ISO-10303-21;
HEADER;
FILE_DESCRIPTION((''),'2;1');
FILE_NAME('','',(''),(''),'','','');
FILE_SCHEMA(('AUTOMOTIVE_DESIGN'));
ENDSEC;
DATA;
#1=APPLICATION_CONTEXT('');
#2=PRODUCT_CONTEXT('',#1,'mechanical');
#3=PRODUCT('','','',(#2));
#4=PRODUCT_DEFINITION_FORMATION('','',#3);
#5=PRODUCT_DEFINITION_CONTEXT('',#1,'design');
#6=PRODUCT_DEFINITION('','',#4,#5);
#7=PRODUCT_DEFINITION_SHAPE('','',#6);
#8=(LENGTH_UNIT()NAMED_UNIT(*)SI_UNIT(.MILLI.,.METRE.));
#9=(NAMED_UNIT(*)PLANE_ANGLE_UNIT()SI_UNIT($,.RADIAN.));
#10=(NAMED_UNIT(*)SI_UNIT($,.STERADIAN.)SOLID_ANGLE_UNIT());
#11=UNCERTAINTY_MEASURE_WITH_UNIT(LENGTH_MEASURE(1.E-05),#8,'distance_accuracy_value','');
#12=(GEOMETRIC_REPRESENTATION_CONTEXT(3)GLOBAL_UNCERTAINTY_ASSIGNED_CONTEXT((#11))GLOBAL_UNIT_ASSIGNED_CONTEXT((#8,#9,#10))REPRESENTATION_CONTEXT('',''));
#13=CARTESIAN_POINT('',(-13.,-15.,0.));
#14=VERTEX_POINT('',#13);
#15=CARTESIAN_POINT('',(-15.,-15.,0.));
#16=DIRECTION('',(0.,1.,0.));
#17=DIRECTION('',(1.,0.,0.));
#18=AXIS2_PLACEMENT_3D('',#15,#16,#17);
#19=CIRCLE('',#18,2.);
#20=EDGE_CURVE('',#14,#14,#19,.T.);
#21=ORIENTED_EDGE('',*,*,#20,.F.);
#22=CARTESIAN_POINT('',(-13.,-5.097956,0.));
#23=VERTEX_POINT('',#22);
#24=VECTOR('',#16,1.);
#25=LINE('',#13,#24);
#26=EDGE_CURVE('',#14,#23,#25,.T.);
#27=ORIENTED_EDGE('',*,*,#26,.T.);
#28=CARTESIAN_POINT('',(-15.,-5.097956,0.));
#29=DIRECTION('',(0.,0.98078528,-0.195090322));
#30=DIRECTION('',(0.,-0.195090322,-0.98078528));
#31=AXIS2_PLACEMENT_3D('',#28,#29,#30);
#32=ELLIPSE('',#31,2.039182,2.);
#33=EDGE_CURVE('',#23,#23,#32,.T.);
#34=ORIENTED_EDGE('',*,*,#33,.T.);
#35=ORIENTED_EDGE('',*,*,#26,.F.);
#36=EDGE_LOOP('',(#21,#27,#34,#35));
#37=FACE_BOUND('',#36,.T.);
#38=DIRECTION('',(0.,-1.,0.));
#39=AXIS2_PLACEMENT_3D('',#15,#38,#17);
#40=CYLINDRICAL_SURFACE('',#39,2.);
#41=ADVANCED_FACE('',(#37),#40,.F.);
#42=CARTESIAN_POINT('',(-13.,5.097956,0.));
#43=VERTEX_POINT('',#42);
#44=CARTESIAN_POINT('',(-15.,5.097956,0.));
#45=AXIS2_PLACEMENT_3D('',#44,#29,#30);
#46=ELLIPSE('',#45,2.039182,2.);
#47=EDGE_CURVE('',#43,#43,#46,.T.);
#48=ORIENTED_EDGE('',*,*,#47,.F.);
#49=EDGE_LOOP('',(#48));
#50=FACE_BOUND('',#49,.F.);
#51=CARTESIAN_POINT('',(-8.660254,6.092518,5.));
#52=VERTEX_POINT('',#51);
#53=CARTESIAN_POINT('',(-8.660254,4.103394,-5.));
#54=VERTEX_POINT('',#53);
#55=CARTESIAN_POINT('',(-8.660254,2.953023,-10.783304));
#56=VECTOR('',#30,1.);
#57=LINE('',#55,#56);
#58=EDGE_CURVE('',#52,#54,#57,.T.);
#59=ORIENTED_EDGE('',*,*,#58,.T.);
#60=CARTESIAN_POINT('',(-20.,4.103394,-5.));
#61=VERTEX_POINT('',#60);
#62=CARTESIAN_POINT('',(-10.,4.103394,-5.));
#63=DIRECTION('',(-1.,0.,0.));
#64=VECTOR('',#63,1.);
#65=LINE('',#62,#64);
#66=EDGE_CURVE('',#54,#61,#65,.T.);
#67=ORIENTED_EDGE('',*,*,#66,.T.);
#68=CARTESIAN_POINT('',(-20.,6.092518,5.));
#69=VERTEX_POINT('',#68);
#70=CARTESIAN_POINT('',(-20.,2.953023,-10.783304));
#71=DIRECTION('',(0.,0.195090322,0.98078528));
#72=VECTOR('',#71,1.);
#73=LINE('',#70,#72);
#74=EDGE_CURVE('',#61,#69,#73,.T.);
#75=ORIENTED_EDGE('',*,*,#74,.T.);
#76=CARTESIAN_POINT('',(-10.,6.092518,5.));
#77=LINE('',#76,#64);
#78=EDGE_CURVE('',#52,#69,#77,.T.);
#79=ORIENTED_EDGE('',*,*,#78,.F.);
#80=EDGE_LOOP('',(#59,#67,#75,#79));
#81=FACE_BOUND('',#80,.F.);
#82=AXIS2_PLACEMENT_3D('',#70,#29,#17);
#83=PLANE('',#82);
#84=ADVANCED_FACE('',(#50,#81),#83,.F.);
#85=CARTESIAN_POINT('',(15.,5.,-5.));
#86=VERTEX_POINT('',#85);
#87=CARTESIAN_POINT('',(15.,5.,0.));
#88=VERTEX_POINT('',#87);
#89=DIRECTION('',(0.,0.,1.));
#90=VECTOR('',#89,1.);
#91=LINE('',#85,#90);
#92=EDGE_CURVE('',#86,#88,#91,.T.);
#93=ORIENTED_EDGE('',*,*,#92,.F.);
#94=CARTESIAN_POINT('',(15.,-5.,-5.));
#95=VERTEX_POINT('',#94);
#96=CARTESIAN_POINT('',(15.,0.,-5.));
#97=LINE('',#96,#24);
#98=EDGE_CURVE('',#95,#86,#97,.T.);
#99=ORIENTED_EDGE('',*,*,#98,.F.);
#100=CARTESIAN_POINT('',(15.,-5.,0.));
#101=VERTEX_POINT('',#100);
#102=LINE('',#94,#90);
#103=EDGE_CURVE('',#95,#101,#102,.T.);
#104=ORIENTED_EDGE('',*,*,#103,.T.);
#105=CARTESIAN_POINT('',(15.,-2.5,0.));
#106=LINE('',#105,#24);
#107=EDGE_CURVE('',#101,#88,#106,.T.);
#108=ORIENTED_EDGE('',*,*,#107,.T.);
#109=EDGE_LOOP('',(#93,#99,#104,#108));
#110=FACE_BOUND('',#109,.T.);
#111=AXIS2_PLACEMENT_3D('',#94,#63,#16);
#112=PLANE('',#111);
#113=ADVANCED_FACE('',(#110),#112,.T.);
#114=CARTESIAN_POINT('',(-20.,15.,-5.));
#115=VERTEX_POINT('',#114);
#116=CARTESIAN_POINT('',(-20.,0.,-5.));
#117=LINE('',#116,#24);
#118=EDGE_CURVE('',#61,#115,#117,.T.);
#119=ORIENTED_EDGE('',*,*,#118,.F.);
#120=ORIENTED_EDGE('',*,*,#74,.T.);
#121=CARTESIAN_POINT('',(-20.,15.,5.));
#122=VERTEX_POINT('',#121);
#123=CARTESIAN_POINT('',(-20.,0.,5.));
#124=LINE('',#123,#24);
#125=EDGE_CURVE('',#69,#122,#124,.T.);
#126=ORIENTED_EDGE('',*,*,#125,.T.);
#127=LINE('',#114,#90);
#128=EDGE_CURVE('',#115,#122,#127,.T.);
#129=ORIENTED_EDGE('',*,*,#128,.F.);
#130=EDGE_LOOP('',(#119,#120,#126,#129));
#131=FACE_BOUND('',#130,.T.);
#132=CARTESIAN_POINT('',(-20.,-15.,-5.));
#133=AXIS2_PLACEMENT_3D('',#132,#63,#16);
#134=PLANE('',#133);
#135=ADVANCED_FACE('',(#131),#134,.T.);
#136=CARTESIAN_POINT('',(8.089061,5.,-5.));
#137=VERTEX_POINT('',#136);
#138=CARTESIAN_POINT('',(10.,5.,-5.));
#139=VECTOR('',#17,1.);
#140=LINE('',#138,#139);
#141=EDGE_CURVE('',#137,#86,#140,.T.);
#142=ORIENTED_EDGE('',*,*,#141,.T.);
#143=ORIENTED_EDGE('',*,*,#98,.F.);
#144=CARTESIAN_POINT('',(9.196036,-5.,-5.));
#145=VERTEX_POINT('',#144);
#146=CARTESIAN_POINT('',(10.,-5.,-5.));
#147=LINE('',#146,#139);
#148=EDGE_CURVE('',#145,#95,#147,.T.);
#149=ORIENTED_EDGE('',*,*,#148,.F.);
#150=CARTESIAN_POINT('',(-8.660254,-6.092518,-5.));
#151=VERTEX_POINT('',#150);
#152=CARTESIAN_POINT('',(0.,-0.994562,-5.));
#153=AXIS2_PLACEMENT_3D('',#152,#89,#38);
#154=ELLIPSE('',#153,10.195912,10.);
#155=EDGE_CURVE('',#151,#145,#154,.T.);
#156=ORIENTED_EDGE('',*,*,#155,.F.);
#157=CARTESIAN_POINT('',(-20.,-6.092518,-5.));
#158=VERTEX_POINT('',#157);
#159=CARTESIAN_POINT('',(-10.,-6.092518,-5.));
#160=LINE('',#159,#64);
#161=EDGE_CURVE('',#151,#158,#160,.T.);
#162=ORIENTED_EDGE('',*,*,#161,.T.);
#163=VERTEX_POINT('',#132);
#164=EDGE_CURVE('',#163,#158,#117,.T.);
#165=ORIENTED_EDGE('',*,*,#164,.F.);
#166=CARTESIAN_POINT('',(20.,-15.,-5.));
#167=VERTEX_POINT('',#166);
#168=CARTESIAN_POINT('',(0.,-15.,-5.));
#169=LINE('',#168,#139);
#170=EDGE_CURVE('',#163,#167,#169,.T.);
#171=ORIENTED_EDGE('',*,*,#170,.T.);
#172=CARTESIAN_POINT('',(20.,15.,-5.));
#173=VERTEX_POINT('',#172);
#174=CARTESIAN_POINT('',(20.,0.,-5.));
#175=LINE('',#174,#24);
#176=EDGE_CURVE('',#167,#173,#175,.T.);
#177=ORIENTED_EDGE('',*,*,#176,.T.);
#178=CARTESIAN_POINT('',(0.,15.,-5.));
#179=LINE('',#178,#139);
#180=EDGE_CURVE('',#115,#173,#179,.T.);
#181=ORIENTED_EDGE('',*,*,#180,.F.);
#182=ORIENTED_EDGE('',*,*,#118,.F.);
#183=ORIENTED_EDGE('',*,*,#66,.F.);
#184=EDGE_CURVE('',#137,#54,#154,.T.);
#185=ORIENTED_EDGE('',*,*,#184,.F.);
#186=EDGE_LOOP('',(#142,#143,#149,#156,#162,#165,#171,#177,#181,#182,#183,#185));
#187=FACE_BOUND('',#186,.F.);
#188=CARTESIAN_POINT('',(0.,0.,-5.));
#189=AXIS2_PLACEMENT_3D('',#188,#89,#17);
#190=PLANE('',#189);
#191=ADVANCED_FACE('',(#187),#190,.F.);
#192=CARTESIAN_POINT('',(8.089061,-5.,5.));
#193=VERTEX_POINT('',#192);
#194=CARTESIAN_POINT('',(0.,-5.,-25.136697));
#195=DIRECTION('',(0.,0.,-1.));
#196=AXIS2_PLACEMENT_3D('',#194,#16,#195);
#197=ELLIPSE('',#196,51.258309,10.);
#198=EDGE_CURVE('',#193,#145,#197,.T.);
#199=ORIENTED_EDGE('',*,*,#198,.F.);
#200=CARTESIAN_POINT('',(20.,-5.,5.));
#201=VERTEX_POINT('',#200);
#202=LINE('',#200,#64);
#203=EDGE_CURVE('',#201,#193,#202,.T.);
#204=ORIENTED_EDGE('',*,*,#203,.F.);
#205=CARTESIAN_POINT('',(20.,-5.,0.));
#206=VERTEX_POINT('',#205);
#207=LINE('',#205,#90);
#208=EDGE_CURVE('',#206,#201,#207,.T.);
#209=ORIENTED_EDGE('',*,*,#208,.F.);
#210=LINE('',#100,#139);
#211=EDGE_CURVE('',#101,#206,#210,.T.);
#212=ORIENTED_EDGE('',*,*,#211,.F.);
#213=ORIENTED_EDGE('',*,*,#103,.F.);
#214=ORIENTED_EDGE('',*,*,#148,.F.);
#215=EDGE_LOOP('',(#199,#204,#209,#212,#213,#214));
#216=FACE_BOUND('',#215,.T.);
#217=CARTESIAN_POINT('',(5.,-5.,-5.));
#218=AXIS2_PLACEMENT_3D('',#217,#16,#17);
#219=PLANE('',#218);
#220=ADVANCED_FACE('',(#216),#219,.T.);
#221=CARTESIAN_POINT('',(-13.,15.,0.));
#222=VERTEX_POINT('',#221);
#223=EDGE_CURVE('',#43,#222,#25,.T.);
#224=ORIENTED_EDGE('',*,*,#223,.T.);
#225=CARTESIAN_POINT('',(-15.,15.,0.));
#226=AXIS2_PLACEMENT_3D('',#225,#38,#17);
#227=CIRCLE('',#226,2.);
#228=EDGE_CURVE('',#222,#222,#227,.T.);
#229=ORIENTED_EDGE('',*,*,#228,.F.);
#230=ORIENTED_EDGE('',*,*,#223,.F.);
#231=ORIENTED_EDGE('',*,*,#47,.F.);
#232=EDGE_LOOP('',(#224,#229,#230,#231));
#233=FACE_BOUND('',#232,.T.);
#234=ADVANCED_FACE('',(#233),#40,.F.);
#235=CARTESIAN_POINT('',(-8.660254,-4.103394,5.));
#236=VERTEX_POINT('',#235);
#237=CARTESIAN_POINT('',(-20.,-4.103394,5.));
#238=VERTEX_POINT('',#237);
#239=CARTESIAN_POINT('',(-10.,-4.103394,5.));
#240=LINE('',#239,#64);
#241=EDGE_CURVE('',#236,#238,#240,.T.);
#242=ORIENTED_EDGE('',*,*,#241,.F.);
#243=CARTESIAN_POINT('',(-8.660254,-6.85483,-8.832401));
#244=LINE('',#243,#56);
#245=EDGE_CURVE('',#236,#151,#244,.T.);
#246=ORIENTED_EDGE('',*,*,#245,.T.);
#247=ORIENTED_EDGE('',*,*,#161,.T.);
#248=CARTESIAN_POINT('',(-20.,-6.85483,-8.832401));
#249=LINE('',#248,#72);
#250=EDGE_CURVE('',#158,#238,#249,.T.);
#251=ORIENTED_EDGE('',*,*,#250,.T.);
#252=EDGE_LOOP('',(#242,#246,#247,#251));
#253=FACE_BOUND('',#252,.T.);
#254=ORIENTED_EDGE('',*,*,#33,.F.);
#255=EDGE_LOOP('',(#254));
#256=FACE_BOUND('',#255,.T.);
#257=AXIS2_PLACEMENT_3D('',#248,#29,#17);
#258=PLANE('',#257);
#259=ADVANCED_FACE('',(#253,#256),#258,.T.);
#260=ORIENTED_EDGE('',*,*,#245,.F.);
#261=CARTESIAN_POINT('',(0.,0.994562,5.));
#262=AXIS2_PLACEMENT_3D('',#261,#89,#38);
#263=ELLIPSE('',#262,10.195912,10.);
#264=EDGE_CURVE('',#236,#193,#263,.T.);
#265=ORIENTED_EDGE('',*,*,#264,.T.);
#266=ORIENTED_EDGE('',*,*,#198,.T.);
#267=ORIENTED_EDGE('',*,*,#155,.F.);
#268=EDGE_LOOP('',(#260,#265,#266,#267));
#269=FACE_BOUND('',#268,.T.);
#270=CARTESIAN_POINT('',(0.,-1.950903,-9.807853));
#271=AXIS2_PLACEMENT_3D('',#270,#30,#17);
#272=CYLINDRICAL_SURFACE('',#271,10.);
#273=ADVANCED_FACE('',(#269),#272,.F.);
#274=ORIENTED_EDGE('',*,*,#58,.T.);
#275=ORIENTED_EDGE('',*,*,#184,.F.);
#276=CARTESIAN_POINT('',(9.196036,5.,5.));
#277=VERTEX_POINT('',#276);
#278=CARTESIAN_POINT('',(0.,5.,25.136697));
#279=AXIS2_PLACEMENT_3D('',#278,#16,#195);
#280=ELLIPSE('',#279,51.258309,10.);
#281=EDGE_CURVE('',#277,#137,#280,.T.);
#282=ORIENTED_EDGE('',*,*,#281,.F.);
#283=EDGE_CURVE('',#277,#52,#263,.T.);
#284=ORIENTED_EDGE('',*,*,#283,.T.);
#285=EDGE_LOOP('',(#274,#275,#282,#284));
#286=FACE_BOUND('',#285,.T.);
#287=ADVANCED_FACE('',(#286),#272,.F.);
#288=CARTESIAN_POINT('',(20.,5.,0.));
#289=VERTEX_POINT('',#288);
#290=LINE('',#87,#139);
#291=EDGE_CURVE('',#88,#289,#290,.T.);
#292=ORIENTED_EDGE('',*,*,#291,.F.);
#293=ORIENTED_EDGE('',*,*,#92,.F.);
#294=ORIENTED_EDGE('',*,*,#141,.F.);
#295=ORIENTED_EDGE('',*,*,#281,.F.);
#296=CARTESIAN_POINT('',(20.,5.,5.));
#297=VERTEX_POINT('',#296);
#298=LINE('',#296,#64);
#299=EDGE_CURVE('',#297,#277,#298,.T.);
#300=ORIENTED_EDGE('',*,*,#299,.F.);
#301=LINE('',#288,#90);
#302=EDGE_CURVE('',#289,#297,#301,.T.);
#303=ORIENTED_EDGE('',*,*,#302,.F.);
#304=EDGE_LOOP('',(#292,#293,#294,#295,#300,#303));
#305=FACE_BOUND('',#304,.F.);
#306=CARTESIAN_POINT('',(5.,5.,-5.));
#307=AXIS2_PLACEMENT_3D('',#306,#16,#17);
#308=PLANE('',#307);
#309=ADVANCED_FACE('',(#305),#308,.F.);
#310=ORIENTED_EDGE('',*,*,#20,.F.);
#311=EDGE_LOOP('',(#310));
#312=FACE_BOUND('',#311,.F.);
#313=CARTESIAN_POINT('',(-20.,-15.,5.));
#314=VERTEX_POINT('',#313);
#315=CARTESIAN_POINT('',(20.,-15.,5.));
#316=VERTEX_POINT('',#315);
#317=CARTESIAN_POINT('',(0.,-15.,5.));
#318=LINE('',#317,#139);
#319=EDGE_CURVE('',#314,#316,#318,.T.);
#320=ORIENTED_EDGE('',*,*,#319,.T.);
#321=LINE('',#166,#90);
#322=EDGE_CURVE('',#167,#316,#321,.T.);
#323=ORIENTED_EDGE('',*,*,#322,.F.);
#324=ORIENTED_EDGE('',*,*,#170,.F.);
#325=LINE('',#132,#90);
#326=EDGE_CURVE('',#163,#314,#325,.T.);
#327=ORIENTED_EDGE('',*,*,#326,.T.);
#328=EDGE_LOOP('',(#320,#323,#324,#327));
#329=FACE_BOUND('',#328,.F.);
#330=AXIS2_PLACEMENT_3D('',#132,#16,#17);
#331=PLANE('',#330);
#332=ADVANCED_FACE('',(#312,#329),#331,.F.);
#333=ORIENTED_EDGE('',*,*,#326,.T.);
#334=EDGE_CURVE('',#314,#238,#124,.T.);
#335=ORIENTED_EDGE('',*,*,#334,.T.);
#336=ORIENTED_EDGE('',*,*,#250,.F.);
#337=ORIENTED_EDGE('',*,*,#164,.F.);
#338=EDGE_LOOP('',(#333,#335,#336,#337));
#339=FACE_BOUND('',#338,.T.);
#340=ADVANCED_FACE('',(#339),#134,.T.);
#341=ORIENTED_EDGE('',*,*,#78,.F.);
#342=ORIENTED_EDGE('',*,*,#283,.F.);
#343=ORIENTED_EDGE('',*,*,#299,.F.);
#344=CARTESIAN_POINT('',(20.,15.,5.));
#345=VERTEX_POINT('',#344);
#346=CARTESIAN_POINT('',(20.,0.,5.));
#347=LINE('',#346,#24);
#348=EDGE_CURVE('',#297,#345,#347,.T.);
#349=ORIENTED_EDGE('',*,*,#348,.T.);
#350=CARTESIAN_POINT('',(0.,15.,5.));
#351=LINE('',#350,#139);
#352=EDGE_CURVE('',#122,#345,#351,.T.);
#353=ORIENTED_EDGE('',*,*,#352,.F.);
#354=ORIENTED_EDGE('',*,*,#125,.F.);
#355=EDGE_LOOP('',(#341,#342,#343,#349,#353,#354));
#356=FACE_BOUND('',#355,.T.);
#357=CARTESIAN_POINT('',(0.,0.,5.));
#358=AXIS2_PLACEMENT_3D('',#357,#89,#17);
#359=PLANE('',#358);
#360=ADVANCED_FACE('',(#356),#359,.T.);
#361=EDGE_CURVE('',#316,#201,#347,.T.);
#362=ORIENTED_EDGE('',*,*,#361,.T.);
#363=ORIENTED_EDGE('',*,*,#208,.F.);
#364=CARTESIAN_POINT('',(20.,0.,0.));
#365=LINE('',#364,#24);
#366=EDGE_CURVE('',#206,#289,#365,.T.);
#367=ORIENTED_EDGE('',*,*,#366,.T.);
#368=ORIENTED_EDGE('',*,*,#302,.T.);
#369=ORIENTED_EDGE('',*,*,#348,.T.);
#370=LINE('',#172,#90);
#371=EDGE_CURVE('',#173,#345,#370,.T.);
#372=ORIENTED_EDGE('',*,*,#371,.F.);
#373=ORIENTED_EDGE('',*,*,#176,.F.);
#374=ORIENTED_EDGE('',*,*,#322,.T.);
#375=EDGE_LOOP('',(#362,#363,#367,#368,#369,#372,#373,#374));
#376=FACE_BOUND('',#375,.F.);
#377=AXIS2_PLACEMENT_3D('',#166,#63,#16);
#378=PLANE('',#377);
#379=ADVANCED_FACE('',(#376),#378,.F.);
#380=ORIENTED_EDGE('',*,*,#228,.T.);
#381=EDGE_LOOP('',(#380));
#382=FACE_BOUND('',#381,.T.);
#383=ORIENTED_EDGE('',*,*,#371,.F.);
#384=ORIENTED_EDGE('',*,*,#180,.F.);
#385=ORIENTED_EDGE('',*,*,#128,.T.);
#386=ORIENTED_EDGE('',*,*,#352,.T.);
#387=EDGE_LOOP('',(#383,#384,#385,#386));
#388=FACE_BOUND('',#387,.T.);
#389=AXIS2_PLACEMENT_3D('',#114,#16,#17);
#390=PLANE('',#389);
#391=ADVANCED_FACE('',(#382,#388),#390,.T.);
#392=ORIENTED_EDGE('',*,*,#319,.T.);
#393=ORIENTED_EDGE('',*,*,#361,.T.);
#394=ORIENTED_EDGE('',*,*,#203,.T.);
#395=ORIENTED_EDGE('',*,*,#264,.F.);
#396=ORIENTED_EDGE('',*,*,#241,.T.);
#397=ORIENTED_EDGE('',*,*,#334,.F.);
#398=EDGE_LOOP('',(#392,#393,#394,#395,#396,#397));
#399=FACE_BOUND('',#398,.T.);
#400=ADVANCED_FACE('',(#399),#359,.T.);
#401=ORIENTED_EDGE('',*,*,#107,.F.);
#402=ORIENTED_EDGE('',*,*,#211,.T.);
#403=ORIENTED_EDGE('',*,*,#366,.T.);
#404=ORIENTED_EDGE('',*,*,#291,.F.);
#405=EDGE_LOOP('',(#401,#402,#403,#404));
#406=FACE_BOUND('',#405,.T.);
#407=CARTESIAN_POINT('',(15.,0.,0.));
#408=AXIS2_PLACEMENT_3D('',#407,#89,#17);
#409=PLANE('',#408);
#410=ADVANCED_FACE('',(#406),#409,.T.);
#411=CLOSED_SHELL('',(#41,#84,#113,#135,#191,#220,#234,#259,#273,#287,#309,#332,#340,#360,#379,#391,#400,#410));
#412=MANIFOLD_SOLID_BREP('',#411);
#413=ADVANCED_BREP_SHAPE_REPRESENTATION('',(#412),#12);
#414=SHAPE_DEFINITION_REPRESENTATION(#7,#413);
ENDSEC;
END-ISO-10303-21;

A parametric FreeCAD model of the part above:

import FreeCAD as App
import Part
import Sketcher

V = App.Vector


def add_polygon(sketch, points):
    """Adds a closed chain of lines whose ends are joined by coincident constraints."""
    first, n = sketch.GeometryCount, len(points)
    for a, b in zip(points, points[1:] + points[:1]):
        sketch.addGeometry(Part.LineSegment(App.Vector(*a, 0), App.Vector(*b, 0)), False)
    for i in range(n):
        sketch.addConstraint(Sketcher.Constraint("Coincident", first + i, 2, first + (i + 1) % n, 1))

doc = App.newDocument("Part")
body = doc.addObject("PartDesign::Body", "Body")

sketch1 = body.newObject("Sketcher::SketchObject", "Sketch")
sketch1.AttachmentSupport = (doc.getObject("XY_Plane"), [""])
sketch1.MapMode = "FlatFace"
add_polygon(sketch1, [(10, 5), (10, -5), (20, -5), (20, 5)])
sketch1.addConstraint(Sketcher.Constraint("Vertical", 0))
sketch1.addConstraint(Sketcher.Constraint("Horizontal", 1))
sketch1.addConstraint(Sketcher.Constraint("Vertical", 2))
sketch1.addConstraint(Sketcher.Constraint("Horizontal", 3))
sketch1.addConstraint(Sketcher.Constraint("Equal", 3, 0))
sketch1.addConstraint(Sketcher.Constraint("DistanceX", 1, 1, 1, 2, 10.0))
sketch1.addConstraint(Sketcher.Constraint("DistanceX", -1, 1, 0, 2, 10.0))
sketch1.addConstraint(Sketcher.Constraint("DistanceY", 0, 2, -1, 1, 5.0))
pad1 = body.newObject("PartDesign::Pad", "Pad")
pad1.Profile = sketch1
pad1.Length = 5
body2 = doc.addObject("PartDesign::Body", "Body001")

sketch2 = body2.newObject("Sketcher::SketchObject", "Sketch001")
sketch2.AttachmentSupport = (doc.getObject("XY_Plane001"), [""])
sketch2.MapMode = "FlatFace"
sketch2.addGeometry(Part.Circle(V(0, 0, 0), V(0, 0, 1), 2), False)
sketch2.addConstraint(Sketcher.Constraint("Coincident", 0, 3, -1, 1))
sketch2.addConstraint(Sketcher.Constraint("Diameter", 0, 4.0))
pad2 = body2.newObject("PartDesign::Pad", "Pad001")
pad2.Profile = sketch2
pad2.Length = 35
body3 = doc.addObject("PartDesign::Body", "Body002")
doc.recompute()

body2.Placement = App.Placement(V(0, 0, 0), App.Rotation(V(1, 0, 0), 270))
boolean = body3.newObject("PartDesign::Boolean", "Boolean")
boolean.Type = "Fuse"
boolean.addObjects([body2])
body4 = doc.addObject("PartDesign::Body", "Body003")
doc.recompute()

body3.Placement = App.Placement(V(-15, -15, 0), App.Rotation(V(0, 0, 1), 0))
boolean2 = body4.newObject("PartDesign::Boolean", "Boolean001")
boolean2.Type = "Fuse"
boolean2.addObjects([body3])
body5 = doc.addObject("PartDesign::Body", "Body004")

sketch3 = body5.newObject("Sketcher::SketchObject", "Sketch002")
sketch3.AttachmentSupport = (doc.getObject("XY_Plane004"), [""])
sketch3.MapMode = "FlatFace"
sketch3.AttachmentOffset = App.Placement(V(0, 0, -10), App.Rotation())
sketch3.addGeometry(Part.Circle(V(0, 0, 0), V(0, 0, 1), 10), False)
sketch3.addConstraint(Sketcher.Constraint("Coincident", 0, 3, -1, 1))
sketch3.addConstraint(Sketcher.Constraint("Diameter", 0, 20.0))
pad3 = body5.newObject("PartDesign::Pad", "Pad002")
pad3.Profile = sketch3
pad3.Length = 20
body6 = doc.addObject("PartDesign::Body", "Body005")

sketch4 = body6.newObject("Sketcher::SketchObject", "Sketch003")
sketch4.AttachmentSupport = (doc.getObject("XY_Plane005"), [""])
sketch4.MapMode = "FlatFace"
sketch4.AttachmentOffset = App.Placement(V(0, 0, -10), App.Rotation())
add_polygon(sketch4, [(-20, 5), (-20, -5), (-5, -5), (-5, 5)])
sketch4.addConstraint(Sketcher.Constraint("Vertical", 0))
sketch4.addConstraint(Sketcher.Constraint("Horizontal", 1))
sketch4.addConstraint(Sketcher.Constraint("Vertical", 2))
sketch4.addConstraint(Sketcher.Constraint("Horizontal", 3))
sketch4.addConstraint(Sketcher.Constraint("DistanceX", 1, 1, 1, 2, 15.0))
sketch4.addConstraint(Sketcher.Constraint("DistanceY", 0, 2, 0, 1, 10.0))
sketch4.addConstraint(Sketcher.Constraint("DistanceX", 0, 2, -1, 1, 20.0))
sketch4.addConstraint(Sketcher.Constraint("DistanceY", 0, 2, -1, 1, 5.0))
pad4 = body6.newObject("PartDesign::Pad", "Pad003")
pad4.Profile = sketch4
pad4.Length = 20
doc.recompute()

boolean3 = body6.newObject("PartDesign::Boolean", "Boolean002")
boolean3.Type = "Fuse"
boolean3.addObjects([body5])
body7 = doc.addObject("PartDesign::Body", "Body006")
doc.recompute()

body6.Placement = App.Placement(V(0, 0, 0), App.Rotation(V(1, 0, 0), 348.75))
boolean4 = body7.newObject("PartDesign::Boolean", "Boolean003")
boolean4.Type = "Fuse"
boolean4.addObjects([body6])
body8 = doc.addObject("PartDesign::Body", "Body007")
body8.AllowCompound = True

sketch5 = body8.newObject("Sketcher::SketchObject", "Sketch004")
sketch5.AttachmentSupport = (doc.getObject("XY_Plane007"), [""])
sketch5.MapMode = "FlatFace"
sketch5.AttachmentOffset = App.Placement(V(0, 0, -5), App.Rotation())
add_polygon(sketch5, [(5, 5), (5, -5), (15, -5), (15, 5)])
sketch5.addConstraint(Sketcher.Constraint("Vertical", 0))
sketch5.addConstraint(Sketcher.Constraint("Horizontal", 1))
sketch5.addConstraint(Sketcher.Constraint("Vertical", 2))
sketch5.addConstraint(Sketcher.Constraint("Horizontal", 3))
sketch5.addConstraint(Sketcher.Constraint("Equal", 3, 0))
sketch5.addConstraint(Sketcher.Constraint("DistanceX", 1, 1, 1, 2, 10.0))
sketch5.addConstraint(Sketcher.Constraint("DistanceX", -1, 1, 0, 2, 5.0))
sketch5.addConstraint(Sketcher.Constraint("DistanceY", 0, 2, -1, 1, 5.0))
pad5 = body8.newObject("PartDesign::Pad", "Pad004")
pad5.Profile = sketch5
pad5.Length = 10
doc.recompute()

boolean5 = body8.newObject("PartDesign::Boolean", "Boolean004")
boolean5.Type = "Fuse"
boolean5.addObjects([body])
doc.recompute()

boolean6 = body8.newObject("PartDesign::Boolean", "Boolean005")
boolean6.Type = "Fuse"
boolean6.addObjects([body4])
doc.recompute()

boolean7 = body8.newObject("PartDesign::Boolean", "Boolean006")
boolean7.Type = "Fuse"
boolean7.addObjects([body7])
body9 = doc.addObject("PartDesign::Body", "Body008")

sketch6 = body9.newObject("Sketcher::SketchObject", "Sketch005")
sketch6.AttachmentSupport = (doc.getObject("XY_Plane008"), [""])
sketch6.MapMode = "FlatFace"
sketch6.AttachmentOffset = App.Placement(V(0, 0, -5), App.Rotation())
add_polygon(sketch6, [(-20, 15), (-20, -15), (20, -15), (20, 15)])
sketch6.addConstraint(Sketcher.Constraint("Vertical", 0))
sketch6.addConstraint(Sketcher.Constraint("Horizontal", 1))
sketch6.addConstraint(Sketcher.Constraint("Vertical", 2))
sketch6.addConstraint(Sketcher.Constraint("Horizontal", 3))
sketch6.addConstraint(Sketcher.Constraint("Symmetric", 0, 2, 2, 2, -1, 1))
sketch6.addConstraint(Sketcher.Constraint("DistanceX", 1, 1, 1, 2, 40.0))
sketch6.addConstraint(Sketcher.Constraint("DistanceY", 0, 2, 0, 1, 30.0))
pad6 = body9.newObject("PartDesign::Pad", "Pad005")
pad6.Profile = sketch6
pad6.Length = 10
doc.recompute()

boolean8 = body9.newObject("PartDesign::Boolean", "Boolean007")
boolean8.Type = "Cut"
boolean8.addObjects([body8])

doc.recompute()
